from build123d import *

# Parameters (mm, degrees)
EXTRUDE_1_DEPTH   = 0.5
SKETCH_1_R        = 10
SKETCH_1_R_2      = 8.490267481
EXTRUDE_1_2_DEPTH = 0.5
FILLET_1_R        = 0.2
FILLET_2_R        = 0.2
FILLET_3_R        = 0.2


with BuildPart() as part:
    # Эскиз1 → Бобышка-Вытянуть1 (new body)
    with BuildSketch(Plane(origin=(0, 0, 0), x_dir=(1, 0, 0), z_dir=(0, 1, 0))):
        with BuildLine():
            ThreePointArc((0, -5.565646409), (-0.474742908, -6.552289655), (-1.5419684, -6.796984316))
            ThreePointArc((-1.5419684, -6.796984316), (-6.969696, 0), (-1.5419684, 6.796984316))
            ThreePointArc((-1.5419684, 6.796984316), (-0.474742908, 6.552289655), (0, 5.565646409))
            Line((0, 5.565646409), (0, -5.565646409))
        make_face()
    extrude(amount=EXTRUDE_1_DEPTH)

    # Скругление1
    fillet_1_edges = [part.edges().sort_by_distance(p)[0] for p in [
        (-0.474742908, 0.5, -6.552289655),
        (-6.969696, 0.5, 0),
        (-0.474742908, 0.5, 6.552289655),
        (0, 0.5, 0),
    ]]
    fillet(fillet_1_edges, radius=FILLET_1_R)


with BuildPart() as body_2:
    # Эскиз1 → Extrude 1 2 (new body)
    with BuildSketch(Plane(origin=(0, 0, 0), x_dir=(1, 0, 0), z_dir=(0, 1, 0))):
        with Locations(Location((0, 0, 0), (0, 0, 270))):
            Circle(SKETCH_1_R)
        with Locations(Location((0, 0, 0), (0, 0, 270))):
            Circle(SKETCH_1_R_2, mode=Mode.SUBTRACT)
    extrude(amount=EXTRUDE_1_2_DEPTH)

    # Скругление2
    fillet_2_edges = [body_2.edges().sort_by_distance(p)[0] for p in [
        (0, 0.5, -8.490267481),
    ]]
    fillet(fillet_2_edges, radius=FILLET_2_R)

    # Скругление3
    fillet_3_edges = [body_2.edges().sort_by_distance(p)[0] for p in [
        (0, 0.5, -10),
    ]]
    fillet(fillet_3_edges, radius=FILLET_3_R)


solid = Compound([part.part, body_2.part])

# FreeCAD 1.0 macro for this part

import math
import FreeCAD as App
import Part
import Sketcher
from FreeCAD import Vector
Q = App.Units.Quantity


def edges_at(feature, points):
    """Names of the edges that pass closest to the given points."""
    edges = feature.Shape.Edges
    near = lambda p: min(range(len(edges)), key=lambda i: edges[i].distToShape(Part.Vertex(*p))[0])
    return sorted({f"Edge{near(p) + 1}" for p in points})

doc = App.newDocument("Part")
body = doc.addObject("PartDesign::Body", "Body")

sketch1 = body.newObject("Sketcher::SketchObject", "Sketch")
sketch1.AttachmentSupport = (doc.getObject("XZ_Plane"), [""])
sketch1.MapMode = "FlatFace"
sketch1.addGeometry([
    Part.ArcOfCircle(Part.Circle(Vector(-1.3, 5.6, 0), Vector(0, 0, 1), 1.3), math.radians(0), math.radians(103)),
    Part.LineSegment(Vector(0, 5.6, 0), Vector(0, -5.6, 0)),
    Part.ArcOfCircle(Part.Circle(Vector(-1.3, -5.6, 0), Vector(0, 0, 1), 1.3), math.radians(-103), math.radians(0)),
    Part.ArcOfCircle(Part.Circle(Vector(0, 0, 0), Vector(0, 0, 1), 7), math.radians(103), math.radians(257)),
], False)
sketch1.addConstraint([
    Sketcher.Constraint("Tangent", 0, 1, 1, 1),
    Sketcher.Constraint("Tangent", 1, 2, 2, 2),
    Sketcher.Constraint("Tangent", 2, 1, 3, 2),
    Sketcher.Constraint("Tangent", 3, 1, 0, 2),
    Sketcher.Constraint("Vertical", 1),
    Sketcher.Constraint("Coincident", 3, 3, -1, 1),
    Sketcher.Constraint("Equal", 0, 2),
    Sketcher.Constraint("PointOnObject", 0, 1, -2),
    Sketcher.Constraint("Radius", 0, Q("1.262626 mm")),
    Sketcher.Constraint("Radius", 3, Q("6.969696 mm")),
])
pad1 = body.newObject("PartDesign::Pad", "Pad")
pad1.Profile = sketch1
pad1.Length = 0.5
pad1.Reversed = True
doc.recompute()

fillet = body.newObject("PartDesign::Fillet", "Fillet")
fillet.Base = (pad1, edges_at(pad1, [
    (-0.475, 0.5, -6.552),
    (-6.97, 0.5, 0),
    (-0.475, 0.5, 6.552),
    (0, 0.5, 0),
]))
fillet.Radius = 0.2
body2 = doc.addObject("PartDesign::Body", "Body001")

sketch2 = body2.newObject("Sketcher::SketchObject", "Sketch001")
sketch2.AttachmentSupport = (doc.getObject("XZ_Plane001"), [""])
sketch2.MapMode = "FlatFace"
sketch2.addGeometry([
    Part.Circle(Vector(0, 0, 0), Vector(0, 0, 1), 10),
    Part.Circle(Vector(0, 0, 0), Vector(0, 0, 1), 8),
], False)
sketch2.addConstraint([
    Sketcher.Constraint("Coincident", 0, 3, -1, 1),
    Sketcher.Constraint("Coincident", 1, 3, -1, 1),
    Sketcher.Constraint("Diameter", 0, Q("20 mm")),
    Sketcher.Constraint("Diameter", 1, Q("16.980535 mm")),
])
pad2 = body2.newObject("PartDesign::Pad", "Pad001")
pad2.Profile = sketch2
pad2.Length = 0.5
pad2.Reversed = True
doc.recompute()

fillet2 = body2.newObject("PartDesign::Fillet", "Fillet001")
fillet2.Base = (pad2, edges_at(pad2, [(0, 0.5, -8.49)]))
fillet2.Radius = 0.2
doc.recompute()

fillet3 = body2.newObject("PartDesign::Fillet", "Fillet002")
fillet3.Base = (fillet2, edges_at(fillet2, [(0, 0.5, -10)]))
fillet3.Radius = 0.2

doc.recompute()
